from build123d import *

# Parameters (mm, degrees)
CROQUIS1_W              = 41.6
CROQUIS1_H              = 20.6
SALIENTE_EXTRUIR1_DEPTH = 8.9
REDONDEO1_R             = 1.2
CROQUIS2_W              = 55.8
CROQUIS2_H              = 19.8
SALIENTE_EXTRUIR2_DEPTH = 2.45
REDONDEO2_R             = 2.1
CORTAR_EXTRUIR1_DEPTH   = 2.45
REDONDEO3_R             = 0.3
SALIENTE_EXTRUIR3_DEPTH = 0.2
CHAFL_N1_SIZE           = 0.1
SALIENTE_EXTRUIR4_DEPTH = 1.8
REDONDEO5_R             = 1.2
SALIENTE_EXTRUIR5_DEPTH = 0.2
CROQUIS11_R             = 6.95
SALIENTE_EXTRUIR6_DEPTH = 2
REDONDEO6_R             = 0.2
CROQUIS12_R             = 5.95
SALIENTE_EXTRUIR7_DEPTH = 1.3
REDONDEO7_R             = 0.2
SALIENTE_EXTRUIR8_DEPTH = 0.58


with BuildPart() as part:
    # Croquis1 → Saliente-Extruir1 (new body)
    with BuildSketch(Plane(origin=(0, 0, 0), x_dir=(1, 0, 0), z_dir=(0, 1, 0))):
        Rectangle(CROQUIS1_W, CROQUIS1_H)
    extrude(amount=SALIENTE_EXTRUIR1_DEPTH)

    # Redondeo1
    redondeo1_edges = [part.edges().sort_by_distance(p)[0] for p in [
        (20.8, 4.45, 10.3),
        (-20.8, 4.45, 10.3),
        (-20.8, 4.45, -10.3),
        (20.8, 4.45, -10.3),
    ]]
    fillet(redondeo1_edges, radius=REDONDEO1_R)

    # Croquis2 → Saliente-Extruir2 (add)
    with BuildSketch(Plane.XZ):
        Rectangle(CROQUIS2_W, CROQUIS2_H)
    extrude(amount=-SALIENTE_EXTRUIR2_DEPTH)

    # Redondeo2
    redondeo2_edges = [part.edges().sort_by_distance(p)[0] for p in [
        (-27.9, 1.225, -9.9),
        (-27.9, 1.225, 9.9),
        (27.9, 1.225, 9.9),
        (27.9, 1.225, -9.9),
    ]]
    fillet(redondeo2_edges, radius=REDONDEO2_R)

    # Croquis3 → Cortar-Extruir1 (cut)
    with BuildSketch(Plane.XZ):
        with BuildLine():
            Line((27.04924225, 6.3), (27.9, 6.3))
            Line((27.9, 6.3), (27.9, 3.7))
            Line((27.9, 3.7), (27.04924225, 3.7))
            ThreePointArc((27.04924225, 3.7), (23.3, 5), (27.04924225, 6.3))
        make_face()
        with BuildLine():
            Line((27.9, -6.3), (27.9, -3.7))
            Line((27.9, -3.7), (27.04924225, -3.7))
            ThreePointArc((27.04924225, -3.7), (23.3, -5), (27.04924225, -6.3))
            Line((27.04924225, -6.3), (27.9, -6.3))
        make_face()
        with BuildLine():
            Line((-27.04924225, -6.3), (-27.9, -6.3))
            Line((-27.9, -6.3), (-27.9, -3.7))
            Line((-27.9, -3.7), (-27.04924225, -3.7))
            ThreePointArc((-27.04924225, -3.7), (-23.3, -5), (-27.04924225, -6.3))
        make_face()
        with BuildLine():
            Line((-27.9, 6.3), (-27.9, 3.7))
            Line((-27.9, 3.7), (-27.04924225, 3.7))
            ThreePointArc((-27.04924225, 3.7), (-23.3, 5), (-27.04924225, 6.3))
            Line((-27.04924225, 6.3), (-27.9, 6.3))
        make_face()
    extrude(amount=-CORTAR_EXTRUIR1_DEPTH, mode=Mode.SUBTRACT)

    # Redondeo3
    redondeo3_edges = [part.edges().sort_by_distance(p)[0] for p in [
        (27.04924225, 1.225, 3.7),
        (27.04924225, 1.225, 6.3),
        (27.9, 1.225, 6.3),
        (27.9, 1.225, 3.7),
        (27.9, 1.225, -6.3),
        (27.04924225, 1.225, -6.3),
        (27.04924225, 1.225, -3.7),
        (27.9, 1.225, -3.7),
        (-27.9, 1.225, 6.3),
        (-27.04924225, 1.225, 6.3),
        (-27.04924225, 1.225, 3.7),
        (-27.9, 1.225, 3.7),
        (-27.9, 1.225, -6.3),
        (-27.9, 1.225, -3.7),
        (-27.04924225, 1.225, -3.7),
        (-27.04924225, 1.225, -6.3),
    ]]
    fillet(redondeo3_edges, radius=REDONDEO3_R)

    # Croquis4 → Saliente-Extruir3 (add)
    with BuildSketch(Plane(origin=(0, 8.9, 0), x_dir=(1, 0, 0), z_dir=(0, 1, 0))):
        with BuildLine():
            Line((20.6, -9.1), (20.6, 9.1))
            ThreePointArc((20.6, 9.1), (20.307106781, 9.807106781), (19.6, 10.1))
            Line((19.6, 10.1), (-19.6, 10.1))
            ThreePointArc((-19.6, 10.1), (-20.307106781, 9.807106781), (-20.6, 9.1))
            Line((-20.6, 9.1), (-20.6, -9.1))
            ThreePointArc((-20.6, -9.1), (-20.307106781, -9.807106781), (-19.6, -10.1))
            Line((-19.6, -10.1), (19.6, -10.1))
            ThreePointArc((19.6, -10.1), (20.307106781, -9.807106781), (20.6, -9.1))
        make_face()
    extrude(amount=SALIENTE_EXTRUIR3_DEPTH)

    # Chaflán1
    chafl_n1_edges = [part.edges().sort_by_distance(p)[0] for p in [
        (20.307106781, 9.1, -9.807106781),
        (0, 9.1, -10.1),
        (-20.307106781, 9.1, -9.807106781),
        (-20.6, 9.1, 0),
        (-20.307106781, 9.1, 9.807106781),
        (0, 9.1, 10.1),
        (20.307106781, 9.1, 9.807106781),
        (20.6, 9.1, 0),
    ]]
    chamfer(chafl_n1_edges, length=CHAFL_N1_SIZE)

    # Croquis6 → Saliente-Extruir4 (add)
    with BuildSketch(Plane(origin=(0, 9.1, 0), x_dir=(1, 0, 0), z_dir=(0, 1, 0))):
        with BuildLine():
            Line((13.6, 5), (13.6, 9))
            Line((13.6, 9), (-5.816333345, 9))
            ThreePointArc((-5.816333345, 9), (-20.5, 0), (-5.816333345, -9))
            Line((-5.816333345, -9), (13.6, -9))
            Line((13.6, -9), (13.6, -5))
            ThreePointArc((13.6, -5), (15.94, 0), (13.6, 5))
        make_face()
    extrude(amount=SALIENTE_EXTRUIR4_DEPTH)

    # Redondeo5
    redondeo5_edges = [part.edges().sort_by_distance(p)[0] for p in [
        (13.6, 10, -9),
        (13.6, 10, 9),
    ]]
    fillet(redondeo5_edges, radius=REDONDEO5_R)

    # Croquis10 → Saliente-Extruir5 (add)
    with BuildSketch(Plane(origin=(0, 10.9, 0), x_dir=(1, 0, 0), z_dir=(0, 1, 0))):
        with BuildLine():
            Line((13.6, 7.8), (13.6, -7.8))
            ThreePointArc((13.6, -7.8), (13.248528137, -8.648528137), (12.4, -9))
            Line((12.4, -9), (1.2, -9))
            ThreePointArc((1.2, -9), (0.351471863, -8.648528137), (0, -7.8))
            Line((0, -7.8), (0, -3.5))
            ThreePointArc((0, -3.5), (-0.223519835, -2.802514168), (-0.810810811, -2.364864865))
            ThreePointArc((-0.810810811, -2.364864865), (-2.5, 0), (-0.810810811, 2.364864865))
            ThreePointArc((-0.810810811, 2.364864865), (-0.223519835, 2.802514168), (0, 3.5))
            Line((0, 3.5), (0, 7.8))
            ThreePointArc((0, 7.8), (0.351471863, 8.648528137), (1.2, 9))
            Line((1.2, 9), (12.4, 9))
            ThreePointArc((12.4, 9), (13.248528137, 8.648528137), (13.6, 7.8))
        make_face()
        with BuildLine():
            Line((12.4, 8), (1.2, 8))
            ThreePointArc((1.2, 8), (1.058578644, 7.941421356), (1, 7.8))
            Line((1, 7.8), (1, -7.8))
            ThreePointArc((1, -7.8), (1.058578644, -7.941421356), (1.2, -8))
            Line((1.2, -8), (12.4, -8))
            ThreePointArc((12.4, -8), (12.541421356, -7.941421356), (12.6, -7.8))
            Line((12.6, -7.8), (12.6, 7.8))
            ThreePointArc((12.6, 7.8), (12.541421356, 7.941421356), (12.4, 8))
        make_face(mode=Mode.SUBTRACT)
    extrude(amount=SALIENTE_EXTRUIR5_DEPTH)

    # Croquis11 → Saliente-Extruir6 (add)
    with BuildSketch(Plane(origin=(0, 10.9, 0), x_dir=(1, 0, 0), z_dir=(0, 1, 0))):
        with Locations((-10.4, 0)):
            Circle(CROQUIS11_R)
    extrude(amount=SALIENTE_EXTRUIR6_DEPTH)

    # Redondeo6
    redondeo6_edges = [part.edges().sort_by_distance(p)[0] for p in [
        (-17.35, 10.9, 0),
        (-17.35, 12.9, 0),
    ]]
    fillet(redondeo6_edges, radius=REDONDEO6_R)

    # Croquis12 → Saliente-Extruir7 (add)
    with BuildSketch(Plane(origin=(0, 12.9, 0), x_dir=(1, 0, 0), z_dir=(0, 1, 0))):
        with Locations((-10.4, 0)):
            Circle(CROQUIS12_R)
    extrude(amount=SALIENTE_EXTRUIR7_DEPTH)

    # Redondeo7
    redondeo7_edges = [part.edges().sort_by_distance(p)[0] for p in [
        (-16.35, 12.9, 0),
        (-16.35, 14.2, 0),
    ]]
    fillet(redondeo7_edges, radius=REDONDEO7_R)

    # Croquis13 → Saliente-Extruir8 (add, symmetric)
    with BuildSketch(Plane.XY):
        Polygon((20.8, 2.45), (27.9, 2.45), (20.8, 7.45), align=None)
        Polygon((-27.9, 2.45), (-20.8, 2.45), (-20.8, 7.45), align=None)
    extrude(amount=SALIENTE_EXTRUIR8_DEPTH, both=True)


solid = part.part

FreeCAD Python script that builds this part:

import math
import FreeCAD as App
import Part
import Sketcher
Q = App.Units.Quantity


def edges_at(feature, points):
    """Names of the edges that pass closest to the given points."""
    edges = feature.Shape.Edges
    near = lambda p: min(range(len(edges)), key=lambda i: edges[i].distToShape(Part.Vertex(*p))[0])
    return sorted({f"Edge{near(p) + 1}" for p in points})

doc = App.newDocument("Part")
body = doc.addObject("PartDesign::Body", "Body")

sketch1 = doc.addObject("Sketcher::SketchObject", "Sketch")
body.addObject(sketch1)
sketch1.AttachmentSupport = (doc.XZ_Plane, [""])
sketch1.MapMode = "FlatFace"
sketch1.addGeometry(Part.LineSegment(App.Vector(-21, -10, 0), App.Vector(-21, 10, 0)), False)
sketch1.addGeometry(Part.LineSegment(App.Vector(-21, 10, 0), App.Vector(21, 10, 0)), False)
sketch1.addGeometry(Part.LineSegment(App.Vector(21, 10, 0), App.Vector(21, -10, 0)), False)
sketch1.addGeometry(Part.LineSegment(App.Vector(21, -10, 0), App.Vector(-21, -10, 0)), False)
sketch1.addConstraint(Sketcher.Constraint("Coincident", 0, 2, 1, 1))
sketch1.addConstraint(Sketcher.Constraint("Coincident", 1, 2, 2, 1))
sketch1.addConstraint(Sketcher.Constraint("Coincident", 2, 2, 3, 1))
sketch1.addConstraint(Sketcher.Constraint("Coincident", 3, 2, 0, 1))
sketch1.addConstraint(Sketcher.Constraint("Vertical", 0))
sketch1.addConstraint(Sketcher.Constraint("Horizontal", 1))
sketch1.addConstraint(Sketcher.Constraint("Vertical", 2))
sketch1.addConstraint(Sketcher.Constraint("Horizontal", 3))
sketch1.addConstraint(Sketcher.Constraint("Symmetric", 0, 2, 2, 2, -1, 1))
sketch1.addConstraint(Sketcher.Constraint("DistanceX", 1, 1, 1, 2, Q("41.6 mm")))
sketch1.addConstraint(Sketcher.Constraint("DistanceY", 0, 1, 0, 2, Q("20.6 mm")))
pad1 = doc.addObject("PartDesign::Pad", "Pad")
body.addObject(pad1)
pad1.Profile = sketch1
pad1.Length = 8.9
pad1.Reversed = True
doc.recompute()

fillet = doc.addObject("PartDesign::Fillet", "Fillet")
body.addObject(fillet)
fillet.Base = (pad1, edges_at(pad1, [
    (20.8, 4.45, 10.3),
    (-20.8, 4.45, 10.3),
    (-20.8, 4.45, -10.3),
    (20.8, 4.45, -10.3),
]))
fillet.Radius = 1.2

sketch2 = doc.addObject("Sketcher::SketchObject", "Sketch001")
body.addObject(sketch2)
sketch2.AttachmentSupport = (doc.XZ_Plane, [""])
sketch2.MapMode = "FlatFace"
sketch2.addGeometry(Part.LineSegment(App.Vector(-28, 10, 0), App.Vector(-28, -10, 0)), False)
sketch2.addGeometry(Part.LineSegment(App.Vector(-28, -10, 0), App.Vector(28, -10, 0)), False)
sketch2.addGeometry(Part.LineSegment(App.Vector(28, -10, 0), App.Vector(28, 10, 0)), False)
sketch2.addGeometry(Part.LineSegment(App.Vector(28, 10, 0), App.Vector(-28, 10, 0)), False)
sketch2.addConstraint(Sketcher.Constraint("Coincident", 0, 2, 1, 1))
sketch2.addConstraint(Sketcher.Constraint("Coincident", 1, 2, 2, 1))
sketch2.addConstraint(Sketcher.Constraint("Coincident", 2, 2, 3, 1))
sketch2.addConstraint(Sketcher.Constraint("Coincident", 3, 2, 0, 1))
sketch2.addConstraint(Sketcher.Constraint("Vertical", 0))
sketch2.addConstraint(Sketcher.Constraint("Horizontal", 1))
sketch2.addConstraint(Sketcher.Constraint("Vertical", 2))
sketch2.addConstraint(Sketcher.Constraint("Horizontal", 3))
sketch2.addConstraint(Sketcher.Constraint("Symmetric", 0, 2, 2, 2, -1, 1))
sketch2.addConstraint(Sketcher.Constraint("DistanceX", 1, 1, 1, 2, Q("55.8 mm")))
sketch2.addConstraint(Sketcher.Constraint("DistanceY", 0, 2, 0, 1, Q("19.8 mm")))
pad2 = doc.addObject("PartDesign::Pad", "Pad001")
body.addObject(pad2)
pad2.Profile = sketch2
pad2.Length = 2.45
pad2.Reversed = True
doc.recompute()

fillet2 = doc.addObject("PartDesign::Fillet", "Fillet001")
body.addObject(fillet2)
fillet2.Base = (pad2, edges_at(pad2, [
    (-27.9, 1.225, -9.9),
    (-27.9, 1.225, 9.9),
    (27.9, 1.225, 9.9),
    (27.9, 1.225, -9.9),
]))
fillet2.Radius = 2.1

sketch3 = doc.addObject("Sketcher::SketchObject", "Sketch002")
body.addObject(sketch3)
sketch3.AttachmentSupport = (doc.XZ_Plane, [""])
sketch3.MapMode = "FlatFace"
sketch3.addGeometry(Part.LineSegment(App.Vector(27.9, 6.3, 0), App.Vector(27, 6.3, 0)), False)
sketch3.addGeometry(Part.ArcOfCircle(Part.Circle(App.Vector(25.4, 5, 0), App.Vector(0, 0, 1), 2.1), math.radians(38), math.radians(322)), False)
sketch3.addGeometry(Part.LineSegment(App.Vector(27, 3.7, 0), App.Vector(27.9, 3.7, 0)), False)
sketch3.addGeometry(Part.LineSegment(App.Vector(27.9, 3.7, 0), App.Vector(27.9, 6.3, 0)), False)
sketch3.addGeometry(Part.LineSegment(App.Vector(27.9, -6.3, 0), App.Vector(27.9, -3.7, 0)), False)
sketch3.addGeometry(Part.LineSegment(App.Vector(27.9, -3.7, 0), App.Vector(27, -3.7, 0)), False)
sketch3.addGeometry(Part.ArcOfCircle(Part.Circle(App.Vector(25.4, -5, 0), App.Vector(0, 0, 1), 2.1), math.radians(38), math.radians(322)), False)
sketch3.addGeometry(Part.LineSegment(App.Vector(27, -6.3, 0), App.Vector(27.9, -6.3, 0)), False)
sketch3.addGeometry(Part.LineSegment(App.Vector(-27.9, -6.3, 0), App.Vector(-27, -6.3, 0)), False)
sketch3.addGeometry(Part.ArcOfCircle(Part.Circle(App.Vector(-25.4, -5, 0), App.Vector(0, 0, 1), 2.1), math.radians(-142), math.radians(142)), False)
sketch3.addGeometry(Part.LineSegment(App.Vector(-27, -3.7, 0), App.Vector(-27.9, -3.7, 0)), False)
sketch3.addGeometry(Part.LineSegment(App.Vector(-27.9, -3.7, 0), App.Vector(-27.9, -6.3, 0)), False)
sketch3.addGeometry(Part.LineSegment(App.Vector(-27.9, 6.3, 0), App.Vector(-27.9, 3.7, 0)), False)
sketch3.addGeometry(Part.LineSegment(App.Vector(-27.9, 3.7, 0), App.Vector(-27, 3.7, 0)), False)
sketch3.addGeometry(Part.ArcOfCircle(Part.Circle(App.Vector(-25.4, 5, 0), App.Vector(0, 0, 1), 2.1), math.radians(-142), math.radians(142)), False)
sketch3.addGeometry(Part.LineSegment(App.Vector(-27, 6.3, 0), App.Vector(-27.9, 6.3, 0)), False)
sketch3.addConstraint(Sketcher.Constraint("Coincident", 0, 2, 1, 1))
sketch3.addConstraint(Sketcher.Constraint("Coincident", 1, 2, 2, 1))
sketch3.addConstraint(Sketcher.Constraint("Coincident", 2, 2, 3, 1))
sketch3.addConstraint(Sketcher.Constraint("Coincident", 3, 2, 0, 1))
sketch3.addConstraint(Sketcher.Constraint("Coincident", 4, 2, 5, 1))
sketch3.addConstraint(Sketcher.Constraint("Coincident", 5, 2, 6, 1))
sketch3.addConstraint(Sketcher.Constraint("Coincident", 6, 2, 7, 1))
sketch3.addConstraint(Sketcher.Constraint("Coincident", 7, 2, 4, 1))
sketch3.addConstraint(Sketcher.Constraint("Coincident", 8, 2, 9, 1))
sketch3.addConstraint(Sketcher.Constraint("Coincident", 9, 2, 10, 1))
sketch3.addConstraint(Sketcher.Constraint("Coincident", 10, 2, 11, 1))
sketch3.addConstraint(Sketcher.Constraint("Coincident", 11, 2, 8, 1))
sketch3.addConstraint(Sketcher.Constraint("Coincident", 12, 2, 13, 1))
sketch3.addConstraint(Sketcher.Constraint("Coincident", 13, 2, 14, 1))
sketch3.addConstraint(Sketcher.Constraint("Coincident", 14, 2, 15, 1))
sketch3.addConstraint(Sketcher.Constraint("Coincident", 15, 2, 12, 1))
sketch3.addConstraint(Sketcher.Constraint("Horizontal", 0))
sketch3.addConstraint(Sketcher.Constraint("Horizontal", 2))
sketch3.addConstraint(Sketcher.Constraint("Vertical", 3))
sketch3.addConstraint(Sketcher.Constraint("Vertical", 4))
sketch3.addConstraint(Sketcher.Constraint("Horizontal", 5))
sketch3.addConstraint(Sketcher.Constraint("Horizontal", 7))
sketch3.addConstraint(Sketcher.Constraint("Horizontal", 8))
sketch3.addConstraint(Sketcher.Constraint("Horizontal", 10))
sketch3.addConstraint(Sketcher.Constraint("Vertical", 11))
sketch3.addConstraint(Sketcher.Constraint("Vertical", 12))
sketch3.addConstraint(Sketcher.Constraint("Horizontal", 13))
sketch3.addConstraint(Sketcher.Constraint("Horizontal", 15))
sketch3.addConstraint(Sketcher.Constraint("Equal", 1, 6))
sketch3.addConstraint(Sketcher.Constraint("Equal", 6, 9))
sketch3.addConstraint(Sketcher.Constraint("Equal", 9, 14))
sketch3.addConstraint(Sketcher.Constraint("Symmetric", 1, 3, 9, 3, -1, 1))
sketch3.addConstraint(Sketcher.Constraint("Symmetric", 6, 3, 14, 3, -1, 1))
sketch3.addConstraint(Sketcher.Constraint("Symmetric", 2, 2, 10, 2, -1, 1))
sketch3.addConstraint(Sketcher.Constraint("Symmetric", 4, 2, 12, 2, -1, 1))
sketch3.addConstraint(Sketcher.Constraint("Symmetric", 6, 3, 9, 3, -2))
sketch3.addConstraint(Sketcher.Constraint("Symmetric", 4, 2, 10, 2, -2))
sketch3.addConstraint(Sketcher.Constraint("Horizontal", 7, 2, 8, 2))
sketch3.addConstraint(Sketcher.Constraint("Horizontal", 3, 2, 14, 2))
sketch3.addConstraint(Sketcher.Constraint("Vertical", 0, 2, 1, 2))
sketch3.addConstraint(Sketcher.Constraint("Vertical", 5, 2, 6, 2))
sketch3.addConstraint(Sketcher.Constraint("Radius", 1, Q("2.1 mm")))
sketch3.addConstraint(Sketcher.Constraint("DistanceY", 3, 1, 3, 2, Q("2.6 mm")))
sketch3.addConstraint(Sketcher.Constraint("DistanceY", -1, 1, 1, 3, Q("5 mm")))
sketch3.addConstraint(Sketcher.Constraint("DistanceX", -1, 1, 1, 3, Q("25.4 mm")))
sketch3.addConstraint(Sketcher.Constraint("DistanceX", -1, 1, 2, 2, Q("27.9 mm")))
pocket1 = doc.addObject("PartDesign::Pocket", "Pocket")
body.addObject(pocket1)
pocket1.Profile = sketch3
pocket1.Length = 2.45
doc.recompute()

fillet3 = doc.addObject("PartDesign::Fillet", "Fillet002")
body.addObject(fillet3)
fillet3.Base = (pocket1, edges_at(pocket1, [
    (27.049, 1.225, 3.7),
    (27.049, 1.225, 6.3),
    (27.9, 1.225, 6.3),
    (27.9, 1.225, 3.7),
    (27.9, 1.225, -6.3),
    (27.049, 1.225, -6.3),
    (27.049, 1.225, -3.7),
    (27.9, 1.225, -3.7),
    (-27.9, 1.225, 6.3),
    (-27.049, 1.225, 6.3),
    (-27.049, 1.225, 3.7),
    (-27.9, 1.225, 3.7),
    (-27.9, 1.225, -6.3),
    (-27.9, 1.225, -3.7),
    (-27.049, 1.225, -3.7),
    (-27.049, 1.225, -6.3),
]))
fillet3.Radius = 0.3

sketch4 = doc.addObject("Sketcher::SketchObject", "Sketch003")
body.addObject(sketch4)
sketch4.AttachmentSupport = (doc.XZ_Plane, [""])
sketch4.MapMode = "FlatFace"
sketch4.AttachmentOffset = App.Placement(App.Vector(0, 0, -8.9), App.Rotation())
sketch4.addGeometry(Part.LineSegment(App.Vector(20.6, 9.1, 0), App.Vector(20.6, -9.1, 0)), False)
sketch4.addGeometry(Part.ArcOfCircle(Part.Circle(App.Vector(19.6, -9.1, 0), App.Vector(0, 0, 1), 1), math.radians(-90), math.radians(0)), False)
sketch4.addGeometry(Part.LineSegment(App.Vector(19.6, -10.1, 0), App.Vector(-19.6, -10.1, 0)), False)
sketch4.addGeometry(Part.ArcOfCircle(Part.Circle(App.Vector(-19.6, -9.1, 0), App.Vector(0, 0, 1), 1), math.radians(-180), math.radians(-90)), False)
sketch4.addGeometry(Part.LineSegment(App.Vector(-20.6, -9.1, 0), App.Vector(-20.6, 9.1, 0)), False)
sketch4.addGeometry(Part.ArcOfCircle(Part.Circle(App.Vector(-19.6, 9.1, 0), App.Vector(0, 0, 1), 1), math.radians(90), math.radians(180)), False)
sketch4.addGeometry(Part.LineSegment(App.Vector(-19.6, 10.1, 0), App.Vector(19.6, 10.1, 0)), False)
sketch4.addGeometry(Part.ArcOfCircle(Part.Circle(App.Vector(19.6, 9.1, 0), App.Vector(0, 0, 1), 1), math.radians(0), math.radians(90)), False)
sketch4.addConstraint(Sketcher.Constraint("Tangent", 0, 2, 1, 2))
sketch4.addConstraint(Sketcher.Constraint("Tangent", 1, 1, 2, 1))
sketch4.addConstraint(Sketcher.Constraint("Tangent", 2, 2, 3, 2))
sketch4.addConstraint(Sketcher.Constraint("Tangent", 3, 1, 4, 1))
sketch4.addConstraint(Sketcher.Constraint("Tangent", 4, 2, 5, 2))
sketch4.addConstraint(Sketcher.Constraint("Tangent", 5, 1, 6, 1))
sketch4.addConstraint(Sketcher.Constraint("Tangent", 6, 2, 7, 2))
sketch4.addConstraint(Sketcher.Constraint("Tangent", 7, 1, 0, 1))
sketch4.addConstraint(Sketcher.Constraint("Vertical", 0))
sketch4.addConstraint(Sketcher.Constraint("Horizontal", 2))
sketch4.addConstraint(Sketcher.Constraint("Vertical", 4))
sketch4.addConstraint(Sketcher.Constraint("Horizontal", 6))
sketch4.addConstraint(Sketcher.Constraint("Equal", 1, 3))
sketch4.addConstraint(Sketcher.Constraint("Equal", 3, 5))
sketch4.addConstraint(Sketcher.Constraint("Equal", 5, 7))
sketch4.addConstraint(Sketcher.Constraint("Symmetric", 1, 3, 5, 3, -1, 1))
sketch4.addConstraint(Sketcher.Constraint("Radius", 1, Q("1 mm")))
sketch4.addConstraint(Sketcher.Constraint("DistanceX", 2, 2, 2, 1, Q("39.2 mm")))
sketch4.addConstraint(Sketcher.Constraint("DistanceY", 0, 2, 0, 1, Q("18.2 mm")))
pad3 = doc.addObject("PartDesign::Pad", "Pad002")
body.addObject(pad3)
pad3.Profile = sketch4
pad3.Length = 0.2
pad3.Reversed = True
doc.recompute()

chamfer = doc.addObject("PartDesign::Chamfer", "Chamfer")
body.addObject(chamfer)
chamfer.Base = (pad3, edges_at(pad3, [
    (20.307, 9.1, -9.807),
    (0, 9.1, -10.1),
    (-20.307, 9.1, -9.807),
    (-20.6, 9.1, 0),
    (-20.307, 9.1, 9.807),
    (0, 9.1, 10.1),
    (20.307, 9.1, 9.807),
    (20.6, 9.1, 0),
]))
chamfer.Size = 0.1

sketch5 = doc.addObject("Sketcher::SketchObject", "Sketch004")
body.addObject(sketch5)
sketch5.AttachmentSupport = (doc.XZ_Plane, [""])
sketch5.MapMode = "FlatFace"
sketch5.AttachmentOffset = App.Placement(App.Vector(0, 0, -9.1), App.Rotation())
sketch5.addGeometry(Part.LineSegment(App.Vector(13.6, -5, 0), App.Vector(13.6, -9, 0)), False)
sketch5.addGeometry(Part.LineSegment(App.Vector(13.6, -9, 0), App.Vector(-5.8, -9, 0)), False)
sketch5.addGeometry(Part.ArcOfCircle(Part.Circle(App.Vector(-10.4, 0, 0), App.Vector(0, 0, 1), 10.1), math.radians(63), math.radians(297)), False)
sketch5.addGeometry(Part.LineSegment(App.Vector(-5.8, 9, 0), App.Vector(13.6, 9, 0)), False)
sketch5.addGeometry(Part.LineSegment(App.Vector(13.6, 9, 0), App.Vector(13.6, 5, 0)), False)
sketch5.addGeometry(Part.ArcOfCircle(Part.Circle(App.Vector(9.4, 0, 0), App.Vector(0, 0, 1), 6.5), math.radians(-50), math.radians(50)), False)
sketch5.addConstraint(Sketcher.Constraint("Coincident", 0, 2, 1, 1))
sketch5.addConstraint(Sketcher.Constraint("Coincident", 1, 2, 2, 2))
sketch5.addConstraint(Sketcher.Constraint("Coincident", 2, 1, 3, 1))
sketch5.addConstraint(Sketcher.Constraint("Coincident", 3, 2, 4, 1))
sketch5.addConstraint(Sketcher.Constraint("Coincident", 4, 2, 5, 2))
sketch5.addConstraint(Sketcher.Constraint("Coincident", 5, 1, 0, 1))
sketch5.addConstraint(Sketcher.Constraint("Vertical", 0))
sketch5.addConstraint(Sketcher.Constraint("Horizontal", 1))
sketch5.addConstraint(Sketcher.Constraint("Horizontal", 3))
sketch5.addConstraint(Sketcher.Constraint("Vertical", 4))
sketch5.addConstraint(Sketcher.Constraint("Symmetric", 1, 2, 2, 1, -1))
sketch5.addConstraint(Sketcher.Constraint("Symmetric", 4, 2, 5, 1, -1))
sketch5.addConstraint(Sketcher.Constraint("Radius", 2, Q("10.1 mm")))
sketch5.addConstraint(Sketcher.Constraint("DistanceY", 0, 2, 0, 1, Q("4 mm")))
sketch5.addConstraint(Sketcher.Constraint("DistanceY", 0, 2, -1, 1, Q("9 mm")))
sketch5.addConstraint(Sketcher.Constraint("DistanceX", 2, 3, 0, 2, Q("24 mm")))
sketch5.addConstraint(Sketcher.Constraint("DistanceX", 2, 3, -1, 1, Q("10.4 mm")))
sketch5.addConstraint(Sketcher.Constraint("Radius", 5, Q("6.51188 mm")))
pad4 = doc.addObject("PartDesign::Pad", "Pad003")
body.addObject(pad4)
pad4.Profile = sketch5
pad4.Length = 1.8
pad4.Reversed = True
doc.recompute()

fillet4 = doc.addObject("PartDesign::Fillet", "Fillet003")
body.addObject(fillet4)
fillet4.Base = (pad4, edges_at(pad4, [(13.6, 10, -9), (13.6, 10, 9)]))
fillet4.Radius = 1.2

sketch6 = doc.addObject("Sketcher::SketchObject", "Sketch005")
body.addObject(sketch6)
sketch6.AttachmentSupport = (doc.XZ_Plane, [""])
sketch6.MapMode = "FlatFace"
sketch6.AttachmentOffset = App.Placement(App.Vector(0, 0, -10.9), App.Rotation())
sketch6.addGeometry(Part.LineSegment(App.Vector(13.6, 7.8, 0), App.Vector(13.6, -7.8, 0)), False)
sketch6.addGeometry(Part.ArcOfCircle(Part.Circle(App.Vector(12.4, -7.8, 0), App.Vector(0, 0, 1), 1.2), math.radians(-90), math.radians(0)), False)
sketch6.addGeometry(Part.LineSegment(App.Vector(12.4, -9, 0), App.Vector(1.2, -9, 0)), False)
sketch6.addGeometry(Part.ArcOfCircle(Part.Circle(App.Vector(1.2, -7.8, 0), App.Vector(0, 0, 1), 1.2), math.radians(-180), math.radians(-90)), False)
sketch6.addGeometry(Part.LineSegment(App.Vector(0, -7.8, 0), App.Vector(0, -3.5, 0)), False)
sketch6.addGeometry(Part.ArcOfCircle(Part.Circle(App.Vector(-1.2, -3.5, 0), App.Vector(0, 0, 1), 1.2), math.radians(0), math.radians(71)), False)
sketch6.addGeometry(Part.ArcOfCircle(Part.Circle(App.Vector(0, 0, 0), App.Vector(0, 0, 1), 2.5), math.radians(109), math.radians(251)), False)
sketch6.addGeometry(Part.ArcOfCircle(Part.Circle(App.Vector(-1.2, 3.5, 0), App.Vector(0, 0, 1), 1.2), math.radians(-71), math.radians(0)), False)
sketch6.addGeometry(Part.LineSegment(App.Vector(0, 3.5, 0), App.Vector(0, 7.8, 0)), False)
sketch6.addGeometry(Part.ArcOfCircle(Part.Circle(App.Vector(1.2, 7.8, 0), App.Vector(0, 0, 1), 1.2), math.radians(90), math.radians(180)), False)
sketch6.addGeometry(Part.LineSegment(App.Vector(1.2, 9, 0), App.Vector(12.4, 9, 0)), False)
sketch6.addGeometry(Part.ArcOfCircle(Part.Circle(App.Vector(12.4, 7.8, 0), App.Vector(0, 0, 1), 1.2), math.radians(0), math.radians(90)), False)
sketch6.addGeometry(Part.ArcOfCircle(Part.Circle(App.Vector(12.4, -7.8, 0), App.Vector(0, 0, 1), 0.2), math.radians(-90), math.radians(0)), False)
sketch6.addGeometry(Part.LineSegment(App.Vector(12.6, -7.8, 0), App.Vector(12.6, 7.8, 0)), False)
sketch6.addGeometry(Part.ArcOfCircle(Part.Circle(App.Vector(12.4, 7.8, 0), App.Vector(0, 0, 1), 0.2), math.radians(0), math.radians(90)), False)
sketch6.addGeometry(Part.LineSegment(App.Vector(12.4, 8, 0), App.Vector(1.2, 8, 0)), False)
sketch6.addGeometry(Part.ArcOfCircle(Part.Circle(App.Vector(1.2, 7.8, 0), App.Vector(0, 0, 1), 0.2), math.radians(90), math.radians(180)), False)
sketch6.addGeometry(Part.LineSegment(App.Vector(1, 7.8, 0), App.Vector(1, -7.8, 0)), False)
sketch6.addGeometry(Part.ArcOfCircle(Part.Circle(App.Vector(1.2, -7.8, 0), App.Vector(0, 0, 1), 0.2), math.radians(-180), math.radians(-90)), False)
sketch6.addGeometry(Part.LineSegment(App.Vector(1.2, -8, 0), App.Vector(12.4, -8, 0)), False)
sketch6.addConstraint(Sketcher.Constraint("Tangent", 0, 2, 1, 2))
sketch6.addConstraint(Sketcher.Constraint("Tangent", 1, 1, 2, 1))
sketch6.addConstraint(Sketcher.Constraint("Tangent", 2, 2, 3, 2))
sketch6.addConstraint(Sketcher.Constraint("Tangent", 3, 1, 4, 1))
sketch6.addConstraint(Sketcher.Constraint("Tangent", 4, 2, 5, 1))
sketch6.addConstraint(Sketcher.Constraint("Tangent", 5, 2, 6, 2))
sketch6.addConstraint(Sketcher.Constraint("Tangent", 6, 1, 7, 1))
sketch6.addConstraint(Sketcher.Constraint("Tangent", 7, 2, 8, 1))
sketch6.addConstraint(Sketcher.Constraint("Tangent", 8, 2, 9, 2))
sketch6.addConstraint(Sketcher.Constraint("Tangent", 9, 1, 10, 1))
sketch6.addConstraint(Sketcher.Constraint("Tangent", 10, 2, 11, 2))
sketch6.addConstraint(Sketcher.Constraint("Tangent", 11, 1, 0, 1))
sketch6.addConstraint(Sketcher.Constraint("Tangent", 12, 2, 13, 1))
sketch6.addConstraint(Sketcher.Constraint("Tangent", 13, 2, 14, 1))
sketch6.addConstraint(Sketcher.Constraint("Tangent", 14, 2, 15, 1))
sketch6.addConstraint(Sketcher.Constraint("Tangent", 15, 2, 16, 1))
sketch6.addConstraint(Sketcher.Constraint("Tangent", 16, 2, 17, 1))
sketch6.addConstraint(Sketcher.Constraint("Tangent", 17, 2, 18, 1))
sketch6.addConstraint(Sketcher.Constraint("Tangent", 18, 2, 19, 1))
sketch6.addConstraint(Sketcher.Constraint("Tangent", 19, 2, 12, 1))
sketch6.addConstraint(Sketcher.Constraint("Vertical", 0))
sketch6.addConstraint(Sketcher.Constraint("Horizontal", 2))
sketch6.addConstraint(Sketcher.Constraint("Vertical", 4))
sketch6.addConstraint(Sketcher.Constraint("Vertical", 8))
sketch6.addConstraint(Sketcher.Constraint("Horizontal", 10))
sketch6.addConstraint(Sketcher.Constraint("Vertical", 13))
sketch6.addConstraint(Sketcher.Constraint("Horizontal", 15))
sketch6.addConstraint(Sketcher.Constraint("Vertical", 17))
sketch6.addConstraint(Sketcher.Constraint("Horizontal", 19))
sketch6.addConstraint(Sketcher.Constraint("Coincident", 6, 3, -1, 1))
sketch6.addConstraint(Sketcher.Constraint("Coincident", 12, 3, 1, 3))
sketch6.addConstraint(Sketcher.Constraint("Coincident", 14, 3, 11, 3))
sketch6.addConstraint(Sketcher.Constraint("Coincident", 16, 3, 9, 3))
sketch6.addConstraint(Sketcher.Constraint("Coincident", 18, 3, 3, 3))
sketch6.addConstraint(Sketcher.Constraint("Equal", 1, 3))
sketch6.addConstraint(Sketcher.Constraint("Equal", 3, 5))
sketch6.addConstraint(Sketcher.Constraint("Equal", 5, 7))
sketch6.addConstraint(Sketcher.Constraint("Equal", 7, 9))
sketch6.addConstraint(Sketcher.Constraint("Equal", 9, 11))
sketch6.addConstraint(Sketcher.Constraint("Symmetric", 3, 1, 8, 2, -1, 1))
sketch6.addConstraint(Sketcher.Constraint("Radius", 1, Q("1.2 mm")))
sketch6.addConstraint(Sketcher.Constraint("Radius", 6, Q("2.5 mm")))
sketch6.addConstraint(Sketcher.Constraint("Radius", 12, Q("0.2 mm")))
sketch6.addConstraint(Sketcher.Constraint("DistanceX", 2, 2, 2, 1, Q("11.2 mm")))
sketch6.addConstraint(Sketcher.Constraint("DistanceY", 0, 2, 0, 1, Q("15.6 mm")))
pad5 = doc.addObject("PartDesign::Pad", "Pad004")
body.addObject(pad5)
pad5.Profile = sketch6
pad5.Length = 0.2
pad5.Reversed = True

sketch7 = doc.addObject("Sketcher::SketchObject", "Sketch006")
body.addObject(sketch7)
sketch7.AttachmentSupport = (doc.XZ_Plane, [""])
sketch7.MapMode = "FlatFace"
sketch7.AttachmentOffset = App.Placement(App.Vector(0, 0, -10.9), App.Rotation())
sketch7.addGeometry(Part.Circle(App.Vector(-10, 0, 0), App.Vector(0, 0, 1), 7), False)
sketch7.addConstraint(Sketcher.Constraint("PointOnObject", 0, 3, -1))
sketch7.addConstraint(Sketcher.Constraint("Diameter", 0, Q("13.9 mm")))
sketch7.addConstraint(Sketcher.Constraint("DistanceX", 0, 3, -1, 1, Q("10.4 mm")))
pad6 = doc.addObject("PartDesign::Pad", "Pad005")
body.addObject(pad6)
pad6.Profile = sketch7
pad6.Length = 2
pad6.Reversed = True
doc.recompute()

fillet5 = doc.addObject("PartDesign::Fillet", "Fillet004")
body.addObject(fillet5)
fillet5.Base = (pad6, edges_at(pad6, [(-17.35, 10.9, 0), (-17.35, 12.9, 0)]))
fillet5.Radius = 0.2

sketch8 = doc.addObject("Sketcher::SketchObject", "Sketch007")
body.addObject(sketch8)
sketch8.AttachmentSupport = (doc.XZ_Plane, [""])
sketch8.MapMode = "FlatFace"
sketch8.AttachmentOffset = App.Placement(App.Vector(0, 0, -12.9), App.Rotation())
sketch8.addGeometry(Part.Circle(App.Vector(-10, 0, 0), App.Vector(0, 0, 1), 6), False)
sketch8.addConstraint(Sketcher.Constraint("PointOnObject", 0, 3, -1))
sketch8.addConstraint(Sketcher.Constraint("Diameter", 0, Q("11.9 mm")))
sketch8.addConstraint(Sketcher.Constraint("DistanceX", 0, 3, -1, 1, Q("10.4 mm")))
pad7 = doc.addObject("PartDesign::Pad", "Pad006")
body.addObject(pad7)
pad7.Profile = sketch8
pad7.Length = 1.3
pad7.Reversed = True
doc.recompute()

fillet6 = doc.addObject("PartDesign::Fillet", "Fillet005")
body.addObject(fillet6)
fillet6.Base = (pad7, edges_at(pad7, [(-16.35, 12.9, 0), (-16.35, 14.2, 0)]))
fillet6.Radius = 0.2

sketch9 = doc.addObject("Sketcher::SketchObject", "Sketch008")
body.addObject(sketch9)
sketch9.AttachmentSupport = (doc.XY_Plane, [""])
sketch9.MapMode = "FlatFace"
sketch9.addGeometry(Part.LineSegment(App.Vector(21, 2, 0), App.Vector(28, 2, 0)), False)
sketch9.addGeometry(Part.LineSegment(App.Vector(28, 2, 0), App.Vector(21, 7, 0)), False)
sketch9.addGeometry(Part.LineSegment(App.Vector(21, 7, 0), App.Vector(21, 2, 0)), False)
sketch9.addGeometry(Part.LineSegment(App.Vector(-28, 2, 0), App.Vector(-21, 2, 0)), False)
sketch9.addGeometry(Part.LineSegment(App.Vector(-21, 2, 0), App.Vector(-21, 7, 0)), False)
sketch9.addGeometry(Part.LineSegment(App.Vector(-21, 7, 0), App.Vector(-28, 2, 0)), False)
sketch9.addConstraint(Sketcher.Constraint("Coincident", 0, 2, 1, 1))
sketch9.addConstraint(Sketcher.Constraint("Coincident", 1, 2, 2, 1))
sketch9.addConstraint(Sketcher.Constraint("Coincident", 2, 2, 0, 1))
sketch9.addConstraint(Sketcher.Constraint("Coincident", 3, 2, 4, 1))
sketch9.addConstraint(Sketcher.Constraint("Coincident", 4, 2, 5, 1))
sketch9.addConstraint(Sketcher.Constraint("Coincident", 5, 2, 3, 1))
sketch9.addConstraint(Sketcher.Constraint("Horizontal", 0))
sketch9.addConstraint(Sketcher.Constraint("Vertical", 2))
sketch9.addConstraint(Sketcher.Constraint("Horizontal", 3))
sketch9.addConstraint(Sketcher.Constraint("Vertical", 4))
sketch9.addConstraint(Sketcher.Constraint("Symmetric", 2, 2, 3, 2, -2))
sketch9.addConstraint(Sketcher.Constraint("Horizontal", 1, 2, 4, 2))
sketch9.addConstraint(Sketcher.Constraint("Equal", 0, 3))
sketch9.addConstraint(Sketcher.Constraint("DistanceY", 2, 2, 2, 1, Q("5 mm")))
sketch9.addConstraint(Sketcher.Constraint("DistanceX", 0, 1, 0, 2, Q("7.1 mm")))
sketch9.addConstraint(Sketcher.Constraint("DistanceX", -1, 1, 0, 2, Q("27.9 mm")))
sketch9.addConstraint(Sketcher.Constraint("DistanceY", -1, 1, 0, 2, Q("2.45 mm")))
pad8 = doc.addObject("PartDesign::Pad", "Pad007")
body.addObject(pad8)
pad8.Profile = sketch9
pad8.Length = 1.16
pad8.Midplane = True

doc.recompute()
